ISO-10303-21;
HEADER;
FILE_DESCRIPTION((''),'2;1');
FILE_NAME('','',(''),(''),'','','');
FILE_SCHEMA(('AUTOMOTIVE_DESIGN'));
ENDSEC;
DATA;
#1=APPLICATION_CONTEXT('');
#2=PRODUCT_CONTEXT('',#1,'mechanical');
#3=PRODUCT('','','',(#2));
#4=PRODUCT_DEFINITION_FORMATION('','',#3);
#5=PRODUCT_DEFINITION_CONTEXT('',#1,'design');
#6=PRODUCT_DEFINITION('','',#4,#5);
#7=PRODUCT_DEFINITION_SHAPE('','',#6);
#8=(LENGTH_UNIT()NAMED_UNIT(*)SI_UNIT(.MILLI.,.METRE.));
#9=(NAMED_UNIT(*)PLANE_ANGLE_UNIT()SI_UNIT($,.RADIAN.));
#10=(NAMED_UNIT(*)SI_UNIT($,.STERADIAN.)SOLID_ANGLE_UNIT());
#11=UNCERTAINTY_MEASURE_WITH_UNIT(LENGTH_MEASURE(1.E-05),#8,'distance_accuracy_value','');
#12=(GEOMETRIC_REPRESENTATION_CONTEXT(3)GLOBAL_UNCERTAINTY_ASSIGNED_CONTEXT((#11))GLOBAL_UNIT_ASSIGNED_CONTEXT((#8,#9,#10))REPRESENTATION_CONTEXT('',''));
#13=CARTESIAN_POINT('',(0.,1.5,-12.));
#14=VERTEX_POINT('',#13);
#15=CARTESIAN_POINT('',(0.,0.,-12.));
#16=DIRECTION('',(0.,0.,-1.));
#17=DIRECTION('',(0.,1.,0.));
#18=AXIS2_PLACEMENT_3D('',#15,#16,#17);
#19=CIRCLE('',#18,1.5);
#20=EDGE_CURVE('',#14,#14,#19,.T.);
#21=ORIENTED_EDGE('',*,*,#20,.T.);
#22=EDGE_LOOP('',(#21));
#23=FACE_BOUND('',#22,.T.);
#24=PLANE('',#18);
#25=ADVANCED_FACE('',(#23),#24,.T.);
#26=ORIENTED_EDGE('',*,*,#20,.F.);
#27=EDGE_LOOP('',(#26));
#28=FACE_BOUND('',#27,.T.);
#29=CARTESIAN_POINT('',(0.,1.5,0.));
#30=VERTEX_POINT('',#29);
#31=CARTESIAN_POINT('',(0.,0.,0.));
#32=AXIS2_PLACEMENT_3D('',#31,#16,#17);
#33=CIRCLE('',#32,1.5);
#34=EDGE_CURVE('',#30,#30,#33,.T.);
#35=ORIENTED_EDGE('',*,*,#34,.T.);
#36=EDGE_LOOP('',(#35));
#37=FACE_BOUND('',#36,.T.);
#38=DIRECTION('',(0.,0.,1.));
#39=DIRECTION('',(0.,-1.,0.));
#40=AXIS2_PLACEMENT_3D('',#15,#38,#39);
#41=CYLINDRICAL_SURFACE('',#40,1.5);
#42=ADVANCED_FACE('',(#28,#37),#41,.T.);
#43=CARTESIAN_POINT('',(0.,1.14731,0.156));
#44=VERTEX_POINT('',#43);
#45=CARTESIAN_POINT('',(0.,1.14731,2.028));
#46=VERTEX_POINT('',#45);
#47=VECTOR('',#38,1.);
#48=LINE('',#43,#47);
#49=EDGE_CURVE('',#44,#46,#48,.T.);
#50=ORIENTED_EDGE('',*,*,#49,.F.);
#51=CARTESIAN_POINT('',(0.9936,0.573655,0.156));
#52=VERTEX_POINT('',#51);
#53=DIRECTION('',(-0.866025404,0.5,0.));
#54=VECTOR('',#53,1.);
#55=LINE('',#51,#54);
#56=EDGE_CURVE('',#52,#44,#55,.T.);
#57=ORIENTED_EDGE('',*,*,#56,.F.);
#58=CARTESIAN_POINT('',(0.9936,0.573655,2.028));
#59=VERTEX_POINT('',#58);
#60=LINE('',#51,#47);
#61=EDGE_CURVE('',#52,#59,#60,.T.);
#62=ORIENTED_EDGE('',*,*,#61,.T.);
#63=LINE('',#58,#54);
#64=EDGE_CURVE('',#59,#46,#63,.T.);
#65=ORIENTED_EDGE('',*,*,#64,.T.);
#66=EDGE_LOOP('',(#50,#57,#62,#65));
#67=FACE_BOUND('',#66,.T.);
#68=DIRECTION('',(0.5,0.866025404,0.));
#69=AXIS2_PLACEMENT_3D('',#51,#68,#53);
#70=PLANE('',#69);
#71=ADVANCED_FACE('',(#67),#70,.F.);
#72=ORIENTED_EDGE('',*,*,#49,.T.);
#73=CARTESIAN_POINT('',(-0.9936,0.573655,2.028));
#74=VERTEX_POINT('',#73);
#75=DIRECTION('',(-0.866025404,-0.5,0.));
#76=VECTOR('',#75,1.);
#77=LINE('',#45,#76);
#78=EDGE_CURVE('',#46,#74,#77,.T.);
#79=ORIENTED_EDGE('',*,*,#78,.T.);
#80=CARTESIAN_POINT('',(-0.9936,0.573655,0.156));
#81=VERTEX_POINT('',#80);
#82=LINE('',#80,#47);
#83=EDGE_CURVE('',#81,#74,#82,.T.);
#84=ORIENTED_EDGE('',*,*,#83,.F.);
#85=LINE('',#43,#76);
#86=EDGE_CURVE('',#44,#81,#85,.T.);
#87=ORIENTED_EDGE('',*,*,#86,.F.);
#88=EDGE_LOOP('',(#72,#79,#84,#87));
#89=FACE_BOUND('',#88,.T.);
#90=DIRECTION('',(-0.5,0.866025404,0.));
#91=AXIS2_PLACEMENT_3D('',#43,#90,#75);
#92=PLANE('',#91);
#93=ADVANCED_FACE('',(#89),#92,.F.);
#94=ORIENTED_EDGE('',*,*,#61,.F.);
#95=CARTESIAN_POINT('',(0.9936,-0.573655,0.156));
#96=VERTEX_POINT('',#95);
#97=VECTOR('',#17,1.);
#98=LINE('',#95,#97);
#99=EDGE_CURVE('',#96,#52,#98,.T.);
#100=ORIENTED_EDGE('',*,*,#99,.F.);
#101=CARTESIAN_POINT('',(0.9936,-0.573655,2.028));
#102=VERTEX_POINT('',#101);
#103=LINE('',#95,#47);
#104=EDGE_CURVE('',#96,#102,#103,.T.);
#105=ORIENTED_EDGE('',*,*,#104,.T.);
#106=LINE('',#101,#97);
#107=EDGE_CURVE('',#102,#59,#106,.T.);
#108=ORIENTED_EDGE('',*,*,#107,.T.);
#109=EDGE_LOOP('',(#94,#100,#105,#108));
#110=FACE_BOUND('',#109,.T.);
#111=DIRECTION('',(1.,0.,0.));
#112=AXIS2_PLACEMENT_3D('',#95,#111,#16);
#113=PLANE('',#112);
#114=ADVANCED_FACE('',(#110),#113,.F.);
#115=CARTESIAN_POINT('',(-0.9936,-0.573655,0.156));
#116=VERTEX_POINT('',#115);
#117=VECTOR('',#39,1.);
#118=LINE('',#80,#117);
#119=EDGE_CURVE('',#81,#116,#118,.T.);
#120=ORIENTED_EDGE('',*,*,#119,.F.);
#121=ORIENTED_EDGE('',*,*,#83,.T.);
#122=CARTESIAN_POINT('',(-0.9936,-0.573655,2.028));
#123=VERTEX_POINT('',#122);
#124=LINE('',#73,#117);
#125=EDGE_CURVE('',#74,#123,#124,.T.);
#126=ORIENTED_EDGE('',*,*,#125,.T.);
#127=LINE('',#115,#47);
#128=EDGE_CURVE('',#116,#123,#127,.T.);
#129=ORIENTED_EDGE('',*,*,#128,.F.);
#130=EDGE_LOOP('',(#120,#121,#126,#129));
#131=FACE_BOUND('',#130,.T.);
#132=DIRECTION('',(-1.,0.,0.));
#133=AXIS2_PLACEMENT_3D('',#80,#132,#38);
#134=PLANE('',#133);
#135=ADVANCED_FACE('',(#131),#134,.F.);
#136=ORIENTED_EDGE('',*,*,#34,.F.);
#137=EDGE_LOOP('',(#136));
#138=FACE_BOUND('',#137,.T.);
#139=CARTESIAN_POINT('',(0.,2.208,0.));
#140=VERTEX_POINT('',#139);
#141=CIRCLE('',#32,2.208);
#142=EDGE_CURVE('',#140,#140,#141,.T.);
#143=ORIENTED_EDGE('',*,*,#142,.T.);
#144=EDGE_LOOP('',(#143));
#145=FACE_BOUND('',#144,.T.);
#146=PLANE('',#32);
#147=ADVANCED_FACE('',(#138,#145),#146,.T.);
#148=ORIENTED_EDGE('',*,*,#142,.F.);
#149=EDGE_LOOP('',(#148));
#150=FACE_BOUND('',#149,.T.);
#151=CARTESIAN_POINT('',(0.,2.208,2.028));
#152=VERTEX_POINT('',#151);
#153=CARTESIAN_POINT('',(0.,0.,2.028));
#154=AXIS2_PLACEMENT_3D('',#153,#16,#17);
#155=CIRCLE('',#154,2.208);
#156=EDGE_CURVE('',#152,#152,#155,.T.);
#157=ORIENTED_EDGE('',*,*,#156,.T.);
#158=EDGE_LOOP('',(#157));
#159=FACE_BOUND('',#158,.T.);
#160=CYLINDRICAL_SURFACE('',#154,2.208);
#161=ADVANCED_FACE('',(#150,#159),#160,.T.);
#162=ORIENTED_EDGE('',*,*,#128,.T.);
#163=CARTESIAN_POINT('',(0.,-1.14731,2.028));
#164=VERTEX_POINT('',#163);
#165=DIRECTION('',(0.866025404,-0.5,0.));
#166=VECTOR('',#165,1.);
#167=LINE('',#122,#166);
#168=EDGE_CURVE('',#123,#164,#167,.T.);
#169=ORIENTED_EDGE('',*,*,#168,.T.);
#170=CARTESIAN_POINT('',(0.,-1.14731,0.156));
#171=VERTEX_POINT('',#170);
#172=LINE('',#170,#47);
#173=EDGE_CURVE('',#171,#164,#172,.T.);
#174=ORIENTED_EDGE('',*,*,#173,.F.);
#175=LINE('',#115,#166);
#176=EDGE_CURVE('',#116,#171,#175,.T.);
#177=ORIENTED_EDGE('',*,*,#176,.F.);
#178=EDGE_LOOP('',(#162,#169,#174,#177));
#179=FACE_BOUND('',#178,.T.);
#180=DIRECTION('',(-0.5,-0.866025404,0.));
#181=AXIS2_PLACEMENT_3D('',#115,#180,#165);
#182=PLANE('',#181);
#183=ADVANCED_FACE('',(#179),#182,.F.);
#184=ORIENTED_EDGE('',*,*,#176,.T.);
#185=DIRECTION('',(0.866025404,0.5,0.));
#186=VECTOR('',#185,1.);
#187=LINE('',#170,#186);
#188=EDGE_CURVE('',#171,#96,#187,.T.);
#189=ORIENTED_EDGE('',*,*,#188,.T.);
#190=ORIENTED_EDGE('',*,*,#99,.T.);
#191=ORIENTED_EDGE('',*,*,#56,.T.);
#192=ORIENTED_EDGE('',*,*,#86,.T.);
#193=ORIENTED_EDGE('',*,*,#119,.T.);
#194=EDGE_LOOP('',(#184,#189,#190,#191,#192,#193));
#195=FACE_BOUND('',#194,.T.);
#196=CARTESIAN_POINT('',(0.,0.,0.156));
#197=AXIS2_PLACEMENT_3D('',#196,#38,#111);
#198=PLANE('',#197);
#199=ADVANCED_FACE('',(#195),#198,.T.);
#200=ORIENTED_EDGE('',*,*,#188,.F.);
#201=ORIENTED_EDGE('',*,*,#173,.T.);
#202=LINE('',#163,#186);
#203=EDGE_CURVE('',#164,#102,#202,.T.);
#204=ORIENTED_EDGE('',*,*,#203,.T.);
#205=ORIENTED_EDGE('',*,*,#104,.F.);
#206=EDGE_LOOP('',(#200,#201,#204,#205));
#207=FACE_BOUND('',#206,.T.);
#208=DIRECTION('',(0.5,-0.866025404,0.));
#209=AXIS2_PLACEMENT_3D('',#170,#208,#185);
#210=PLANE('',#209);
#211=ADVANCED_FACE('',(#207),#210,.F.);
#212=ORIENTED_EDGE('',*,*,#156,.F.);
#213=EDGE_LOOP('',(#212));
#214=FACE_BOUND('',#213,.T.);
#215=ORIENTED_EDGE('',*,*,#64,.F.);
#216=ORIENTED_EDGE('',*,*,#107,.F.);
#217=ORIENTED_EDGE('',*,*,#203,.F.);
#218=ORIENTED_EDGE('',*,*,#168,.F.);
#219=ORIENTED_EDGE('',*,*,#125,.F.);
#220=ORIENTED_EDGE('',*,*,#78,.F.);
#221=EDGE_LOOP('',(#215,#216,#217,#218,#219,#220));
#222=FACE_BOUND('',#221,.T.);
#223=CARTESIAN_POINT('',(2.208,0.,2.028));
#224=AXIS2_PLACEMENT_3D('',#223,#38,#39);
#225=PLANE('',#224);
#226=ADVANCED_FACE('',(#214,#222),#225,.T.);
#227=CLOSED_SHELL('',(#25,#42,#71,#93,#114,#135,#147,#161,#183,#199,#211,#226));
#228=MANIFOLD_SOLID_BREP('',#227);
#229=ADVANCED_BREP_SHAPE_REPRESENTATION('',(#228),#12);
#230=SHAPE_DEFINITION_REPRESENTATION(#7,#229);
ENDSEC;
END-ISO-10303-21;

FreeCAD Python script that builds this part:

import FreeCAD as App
import Part
import Sketcher
Q = App.Units.Quantity


def add_polygon(sketch, points):
    """Adds a closed chain of lines whose ends are joined by coincident constraints."""
    first, n = sketch.GeometryCount, len(points)
    for a, b in zip(points, points[1:] + points[:1]):
        sketch.addGeometry(Part.LineSegment(App.Vector(*a, 0), App.Vector(*b, 0)), False)
    for i in range(n):
        sketch.addConstraint(Sketcher.Constraint("Coincident", first + i, 2, first + (i + 1) % n, 1))

doc = App.newDocument("Part")
body = doc.addObject("PartDesign::Body", "Body")

# Sketch on XZ plane
sketch1 = body.newObject("Sketcher::SketchObject", "Sketch")
sketch1.AttachmentSupport = (doc.getObject("XZ_Plane"), [""])
sketch1.MapMode = "FlatFace"
add_polygon(sketch1, [(0, 2.028), (0, 0), (2.208, 0), (2.208, 2.028)])  # lines 0-3
sketch1.addConstraint([
    Sketcher.Constraint("Vertical", 0),
    Sketcher.Constraint("Horizontal", 1),
    Sketcher.Constraint("Vertical", 2),
    Sketcher.Constraint("Horizontal", 3),
    Sketcher.Constraint("Coincident", 0, 2, -1, 1),
    Sketcher.Constraint("DistanceX", 1, 1, 1, 2, 2.208),
    Sketcher.Constraint("DistanceY", 0, 2, 0, 1, 2.028),
])
revolution = body.newObject("PartDesign::Revolution", "Revolution")
revolution.Profile = sketch1
revolution.ReferenceAxis = (sketch1, ["V_Axis"])
revolution.Angle = 360

# Sketch on XY plane
sketch2 = body.newObject("Sketcher::SketchObject", "Sketch001")
sketch2.AttachmentSupport = (doc.getObject("XY_Plane"), [""])
sketch2.MapMode = "FlatFace"
sketch2.addGeometry(Part.Circle(App.Vector(0, 0, 0), App.Vector(0, 0, 1), 1.5), False)
sketch2.addConstraint([
    Sketcher.Constraint("Coincident", 0, 3, -1, 1),
    Sketcher.Constraint("Diameter", 0, 3.0),
])
pad1 = body.newObject("PartDesign::Pad", "Pad")
pad1.Profile = sketch2
pad1.Length = 12
pad1.Reversed = True

# Sketch on XY plane
sketch3 = body.newObject("Sketcher::SketchObject", "Sketch002")
sketch3.AttachmentSupport = (doc.getObject("XY_Plane"), [""])
sketch3.MapMode = "FlatFace"
sketch3.AttachmentOffset = App.Placement(App.Vector(0, 0, 2.028), App.Rotation())
add_polygon(sketch3, [(0.9936, -0.573655), (0.9936, 0.573655), (0, 1.14731), (-0.9936, 0.573655), (-0.9936, -0.573655), (0, -1.14731)])  # lines 0-5
sketch3.addConstraint([
    Sketcher.Constraint("Vertical", 0),
    Sketcher.Constraint("Vertical", 3),
    Sketcher.Constraint("Symmetric", 0, 2, 3, 2, -1, 1),
    Sketcher.Constraint("Symmetric", 1, 2, 4, 2, -1, 1),
    Sketcher.Constraint("PointOnObject", 1, 2, -2),
    Sketcher.Constraint("Parallel", 2, 5),
    Sketcher.Constraint("Horizontal", 0, 2, 2, 2),
    Sketcher.Constraint("Angle", 1, Q("150 deg")),
    Sketcher.Constraint("DistanceY", 0, 1, 0, 2, 1.14731),
    Sketcher.Constraint("DistanceX", -1, 1, 0, 2, 0.9936),
])
pocket1 = body.newObject("PartDesign::Pocket", "Pocket")
pocket1.Profile = sketch3
pocket1.Length = 1.872

doc.recompute()
